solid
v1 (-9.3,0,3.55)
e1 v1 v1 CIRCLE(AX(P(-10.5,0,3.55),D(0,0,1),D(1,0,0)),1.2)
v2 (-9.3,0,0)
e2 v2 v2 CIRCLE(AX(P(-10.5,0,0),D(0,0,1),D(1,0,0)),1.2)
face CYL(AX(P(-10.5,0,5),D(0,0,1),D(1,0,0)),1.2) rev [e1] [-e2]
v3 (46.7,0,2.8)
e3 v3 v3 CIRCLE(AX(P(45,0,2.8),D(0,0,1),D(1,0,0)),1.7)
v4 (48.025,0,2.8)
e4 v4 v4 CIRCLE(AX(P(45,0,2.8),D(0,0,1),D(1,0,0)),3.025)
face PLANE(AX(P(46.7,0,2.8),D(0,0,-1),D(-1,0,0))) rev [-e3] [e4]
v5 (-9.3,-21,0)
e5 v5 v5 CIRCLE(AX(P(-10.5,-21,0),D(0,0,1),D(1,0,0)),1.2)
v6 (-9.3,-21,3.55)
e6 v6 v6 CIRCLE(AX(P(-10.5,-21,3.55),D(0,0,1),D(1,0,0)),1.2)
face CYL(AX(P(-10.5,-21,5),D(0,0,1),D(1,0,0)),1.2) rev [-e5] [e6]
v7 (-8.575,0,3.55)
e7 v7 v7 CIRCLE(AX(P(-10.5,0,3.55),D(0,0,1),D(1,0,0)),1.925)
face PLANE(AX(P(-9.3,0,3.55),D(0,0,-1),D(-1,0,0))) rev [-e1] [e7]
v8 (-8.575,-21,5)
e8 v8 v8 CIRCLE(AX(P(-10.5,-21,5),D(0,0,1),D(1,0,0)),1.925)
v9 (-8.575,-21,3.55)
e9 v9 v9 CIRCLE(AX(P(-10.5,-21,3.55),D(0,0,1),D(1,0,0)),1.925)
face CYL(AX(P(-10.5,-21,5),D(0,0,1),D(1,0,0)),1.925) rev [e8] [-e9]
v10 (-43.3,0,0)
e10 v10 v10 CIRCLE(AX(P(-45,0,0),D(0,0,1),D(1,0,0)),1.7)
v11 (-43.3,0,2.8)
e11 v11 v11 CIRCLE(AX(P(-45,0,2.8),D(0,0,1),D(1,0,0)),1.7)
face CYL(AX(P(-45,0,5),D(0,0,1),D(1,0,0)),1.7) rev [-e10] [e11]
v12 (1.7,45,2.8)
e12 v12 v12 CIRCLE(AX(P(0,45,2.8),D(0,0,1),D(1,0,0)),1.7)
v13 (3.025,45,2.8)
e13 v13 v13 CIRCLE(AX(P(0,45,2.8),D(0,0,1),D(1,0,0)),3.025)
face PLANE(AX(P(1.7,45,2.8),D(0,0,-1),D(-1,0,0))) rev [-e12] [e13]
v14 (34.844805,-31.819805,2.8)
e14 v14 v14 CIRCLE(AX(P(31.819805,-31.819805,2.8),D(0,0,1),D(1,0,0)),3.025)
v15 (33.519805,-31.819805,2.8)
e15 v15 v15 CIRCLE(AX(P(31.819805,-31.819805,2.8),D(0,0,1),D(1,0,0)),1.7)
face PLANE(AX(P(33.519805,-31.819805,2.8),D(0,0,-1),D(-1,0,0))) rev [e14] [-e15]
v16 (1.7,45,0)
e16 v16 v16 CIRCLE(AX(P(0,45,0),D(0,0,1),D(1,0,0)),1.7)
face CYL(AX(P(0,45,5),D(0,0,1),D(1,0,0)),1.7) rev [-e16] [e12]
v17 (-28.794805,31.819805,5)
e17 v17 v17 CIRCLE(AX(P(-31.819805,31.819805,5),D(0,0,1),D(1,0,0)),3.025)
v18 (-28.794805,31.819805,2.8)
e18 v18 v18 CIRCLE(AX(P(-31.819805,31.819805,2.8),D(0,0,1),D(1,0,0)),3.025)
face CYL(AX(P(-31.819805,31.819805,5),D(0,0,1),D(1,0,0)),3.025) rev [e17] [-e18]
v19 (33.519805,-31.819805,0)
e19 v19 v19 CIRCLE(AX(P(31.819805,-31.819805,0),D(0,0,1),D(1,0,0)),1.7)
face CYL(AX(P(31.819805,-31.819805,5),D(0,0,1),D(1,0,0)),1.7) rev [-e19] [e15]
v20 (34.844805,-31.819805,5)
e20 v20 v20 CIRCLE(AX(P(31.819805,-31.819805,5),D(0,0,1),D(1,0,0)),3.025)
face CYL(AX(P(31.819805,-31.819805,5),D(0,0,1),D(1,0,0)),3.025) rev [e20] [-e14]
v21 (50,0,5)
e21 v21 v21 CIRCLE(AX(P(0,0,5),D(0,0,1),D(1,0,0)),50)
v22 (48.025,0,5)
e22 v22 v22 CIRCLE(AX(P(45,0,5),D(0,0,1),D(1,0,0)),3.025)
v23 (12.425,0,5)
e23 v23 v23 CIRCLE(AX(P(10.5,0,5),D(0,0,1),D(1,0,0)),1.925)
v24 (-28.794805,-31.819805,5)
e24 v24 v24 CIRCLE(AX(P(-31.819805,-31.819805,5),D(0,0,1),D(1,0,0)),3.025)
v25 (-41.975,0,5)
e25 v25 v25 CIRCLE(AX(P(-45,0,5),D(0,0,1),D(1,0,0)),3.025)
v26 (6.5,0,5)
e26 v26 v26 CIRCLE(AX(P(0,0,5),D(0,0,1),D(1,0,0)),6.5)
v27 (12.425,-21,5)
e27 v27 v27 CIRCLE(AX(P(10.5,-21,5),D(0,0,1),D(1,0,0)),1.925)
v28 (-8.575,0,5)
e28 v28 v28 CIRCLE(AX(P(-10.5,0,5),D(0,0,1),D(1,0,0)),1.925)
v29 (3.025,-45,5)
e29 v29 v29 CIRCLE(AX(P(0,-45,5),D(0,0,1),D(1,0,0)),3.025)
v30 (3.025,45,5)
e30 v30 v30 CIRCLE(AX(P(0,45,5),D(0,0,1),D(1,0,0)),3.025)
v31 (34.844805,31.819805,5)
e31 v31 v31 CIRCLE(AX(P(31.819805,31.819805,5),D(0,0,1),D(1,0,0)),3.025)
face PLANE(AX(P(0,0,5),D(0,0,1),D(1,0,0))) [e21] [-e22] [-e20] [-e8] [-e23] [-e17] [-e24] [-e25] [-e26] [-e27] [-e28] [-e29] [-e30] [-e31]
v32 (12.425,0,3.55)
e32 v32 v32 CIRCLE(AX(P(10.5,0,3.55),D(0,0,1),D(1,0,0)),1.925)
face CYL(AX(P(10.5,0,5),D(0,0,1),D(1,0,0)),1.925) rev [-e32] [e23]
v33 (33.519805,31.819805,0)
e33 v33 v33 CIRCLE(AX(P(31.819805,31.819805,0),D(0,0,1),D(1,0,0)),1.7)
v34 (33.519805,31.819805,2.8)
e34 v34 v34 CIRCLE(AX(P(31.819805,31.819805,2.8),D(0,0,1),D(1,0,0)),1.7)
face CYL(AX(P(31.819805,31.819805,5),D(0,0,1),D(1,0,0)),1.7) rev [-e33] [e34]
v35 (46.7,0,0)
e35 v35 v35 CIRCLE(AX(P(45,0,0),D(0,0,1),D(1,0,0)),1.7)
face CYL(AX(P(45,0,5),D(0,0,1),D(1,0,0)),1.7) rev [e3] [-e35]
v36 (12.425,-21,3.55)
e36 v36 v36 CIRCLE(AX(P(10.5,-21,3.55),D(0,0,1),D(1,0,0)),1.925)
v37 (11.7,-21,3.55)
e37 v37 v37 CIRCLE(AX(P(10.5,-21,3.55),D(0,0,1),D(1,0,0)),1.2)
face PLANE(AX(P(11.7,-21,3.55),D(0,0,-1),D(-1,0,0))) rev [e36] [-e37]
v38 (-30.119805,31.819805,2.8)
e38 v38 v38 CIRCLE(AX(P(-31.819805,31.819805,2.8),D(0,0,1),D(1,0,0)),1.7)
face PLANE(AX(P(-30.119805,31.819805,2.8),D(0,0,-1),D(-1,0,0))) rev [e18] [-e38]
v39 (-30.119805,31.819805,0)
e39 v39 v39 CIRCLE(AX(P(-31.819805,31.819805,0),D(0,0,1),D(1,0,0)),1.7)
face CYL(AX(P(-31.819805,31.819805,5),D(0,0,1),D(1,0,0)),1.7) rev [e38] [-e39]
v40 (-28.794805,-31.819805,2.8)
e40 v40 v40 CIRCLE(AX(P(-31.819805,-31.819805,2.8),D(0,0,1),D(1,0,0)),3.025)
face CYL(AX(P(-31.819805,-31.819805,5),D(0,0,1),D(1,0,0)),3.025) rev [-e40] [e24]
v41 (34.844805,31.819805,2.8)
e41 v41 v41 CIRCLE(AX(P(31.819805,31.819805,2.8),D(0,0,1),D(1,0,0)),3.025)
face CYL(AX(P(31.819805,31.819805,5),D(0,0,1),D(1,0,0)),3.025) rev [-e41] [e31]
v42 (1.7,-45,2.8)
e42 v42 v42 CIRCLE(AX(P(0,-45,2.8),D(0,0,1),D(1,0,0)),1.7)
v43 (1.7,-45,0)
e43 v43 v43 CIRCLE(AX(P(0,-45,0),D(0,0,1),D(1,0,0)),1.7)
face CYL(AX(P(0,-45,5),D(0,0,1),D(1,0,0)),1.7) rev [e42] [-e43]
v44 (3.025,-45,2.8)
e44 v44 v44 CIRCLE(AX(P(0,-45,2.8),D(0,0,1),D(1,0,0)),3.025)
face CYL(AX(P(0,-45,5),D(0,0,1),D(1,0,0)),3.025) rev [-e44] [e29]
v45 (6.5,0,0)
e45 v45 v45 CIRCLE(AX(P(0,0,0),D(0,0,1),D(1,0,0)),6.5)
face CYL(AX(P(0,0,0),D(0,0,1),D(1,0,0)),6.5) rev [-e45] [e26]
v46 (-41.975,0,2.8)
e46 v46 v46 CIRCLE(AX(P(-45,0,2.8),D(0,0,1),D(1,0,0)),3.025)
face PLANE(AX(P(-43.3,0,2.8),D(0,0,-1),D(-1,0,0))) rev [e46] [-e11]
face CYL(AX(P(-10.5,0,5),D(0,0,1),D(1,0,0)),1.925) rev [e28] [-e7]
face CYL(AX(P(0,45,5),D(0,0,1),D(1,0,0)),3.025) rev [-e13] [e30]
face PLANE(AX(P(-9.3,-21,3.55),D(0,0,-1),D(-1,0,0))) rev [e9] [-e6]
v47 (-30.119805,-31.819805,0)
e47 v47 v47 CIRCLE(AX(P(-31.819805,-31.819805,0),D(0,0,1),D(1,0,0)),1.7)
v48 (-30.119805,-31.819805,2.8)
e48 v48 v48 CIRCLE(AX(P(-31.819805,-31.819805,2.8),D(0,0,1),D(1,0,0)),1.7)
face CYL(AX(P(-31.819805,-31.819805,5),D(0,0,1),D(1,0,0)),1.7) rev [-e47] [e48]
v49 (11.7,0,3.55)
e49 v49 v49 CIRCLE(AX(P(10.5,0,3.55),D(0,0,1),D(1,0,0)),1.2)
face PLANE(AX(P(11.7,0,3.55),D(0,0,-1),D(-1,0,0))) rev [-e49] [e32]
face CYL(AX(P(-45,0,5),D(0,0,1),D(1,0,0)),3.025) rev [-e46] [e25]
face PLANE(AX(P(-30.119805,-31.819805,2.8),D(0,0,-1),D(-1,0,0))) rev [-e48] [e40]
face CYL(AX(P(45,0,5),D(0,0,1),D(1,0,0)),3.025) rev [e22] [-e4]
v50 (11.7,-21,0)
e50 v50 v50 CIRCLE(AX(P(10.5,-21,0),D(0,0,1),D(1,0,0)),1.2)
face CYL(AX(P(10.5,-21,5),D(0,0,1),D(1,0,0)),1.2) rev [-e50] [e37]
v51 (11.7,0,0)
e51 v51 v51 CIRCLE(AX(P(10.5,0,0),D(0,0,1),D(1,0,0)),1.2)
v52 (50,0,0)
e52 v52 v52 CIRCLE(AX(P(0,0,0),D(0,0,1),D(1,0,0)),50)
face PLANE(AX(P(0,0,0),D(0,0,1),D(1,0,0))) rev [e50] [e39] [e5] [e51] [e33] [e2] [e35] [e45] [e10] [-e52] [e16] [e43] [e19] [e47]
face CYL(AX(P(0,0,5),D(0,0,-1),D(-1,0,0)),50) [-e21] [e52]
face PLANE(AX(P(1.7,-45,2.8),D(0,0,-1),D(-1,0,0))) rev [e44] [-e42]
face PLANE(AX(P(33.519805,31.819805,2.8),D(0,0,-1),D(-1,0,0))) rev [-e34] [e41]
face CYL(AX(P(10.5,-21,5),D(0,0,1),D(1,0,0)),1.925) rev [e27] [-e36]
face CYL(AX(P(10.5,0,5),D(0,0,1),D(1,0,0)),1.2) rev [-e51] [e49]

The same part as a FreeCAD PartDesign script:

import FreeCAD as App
import Part
import Sketcher
from FreeCAD import Vector
Q = App.Units.Quantity

doc = App.newDocument("Part")
body = doc.addObject("PartDesign::Body", "Body")

# Sketch on XY plane
sketch1 = body.newObject("Sketcher::SketchObject", "Sketch")
sketch1.AttachmentSupport = (doc.getObject("XY_Plane"), [""])
sketch1.MapMode = "FlatFace"
sketch1.addGeometry(Part.Circle(Vector(0, 0, 0), Vector(0, 0, 1), 50), False)
sketch1.addConstraint(Sketcher.Constraint("Coincident", 0, 3, -1, 1))
sketch1.addConstraint(Sketcher.Constraint("Diameter", 0, Q("100 mm")))
pad1 = body.newObject("PartDesign::Pad", "Pad")
pad1.Profile = sketch1
pad1.Length = 5

# Sketch on XY plane
sketch2 = body.newObject("Sketcher::SketchObject", "Sketch001")
sketch2.AttachmentSupport = (doc.getObject("XY_Plane"), [""])
sketch2.MapMode = "FlatFace"
sketch2.AttachmentOffset = App.Placement(Vector(0, 0, 5), App.Rotation())
sketch2.addGeometry(Part.Circle(Vector(-10.5, 0, 0), Vector(0, 0, 1), 1.2), False)
sketch2.addGeometry(Part.Circle(Vector(-10.5, -21, 0), Vector(0, 0, 1), 1.2), False)
sketch2.addConstraint(Sketcher.Constraint("Equal", 0, 1))
sketch2.addConstraint(Sketcher.Constraint("PointOnObject", 0, 3, -1))
sketch2.addConstraint(Sketcher.Constraint("Vertical", 0, 3, 1, 3))
sketch2.addConstraint(Sketcher.Constraint("Diameter", 0, Q("2.4 mm")))
sketch2.addConstraint(Sketcher.Constraint("DistanceY", 1, 3, -1, 1, Q("21 mm")))
sketch2.addConstraint(Sketcher.Constraint("DistanceX", 0, 3, -1, 1, Q("10.5 mm")))
doc.recompute()
hole = body.newObject("PartDesign::Hole", "Hole")
hole.Profile = sketch2
hole.ThreadType = "None"
hole.Diameter = 2.4
hole.DepthType = "ThroughAll"
hole.HoleCutType = "Counterbore"
hole.HoleCutDiameter = 3.85
hole.HoleCutDepth = 1.45
doc.recompute()

mirrored = body.newObject("PartDesign::Mirrored", "Mirrored")
mirrored.Originals = [hole]
mirrored.MirrorPlane = (doc.getObject("YZ_Plane"), [""])
body.Tip = mirrored

# Sketch on XY plane
sketch3 = body.newObject("Sketcher::SketchObject", "Sketch002")
sketch3.AttachmentSupport = (doc.getObject("XY_Plane"), [""])
sketch3.MapMode = "FlatFace"
sketch3.AttachmentOffset = App.Placement(Vector(0, 0, 5), App.Rotation())
sketch3.addGeometry(Part.Circle(Vector(45, 0, 0), Vector(0, 0, 1), 1.7), False)
sketch3.addConstraint(Sketcher.Constraint("PointOnObject", 0, 3, -1))
sketch3.addConstraint(Sketcher.Constraint("Diameter", 0, Q("3.4 mm")))
sketch3.addConstraint(Sketcher.Constraint("DistanceX", -1, 1, 0, 3, Q("45 mm")))
doc.recompute()
hole2 = body.newObject("PartDesign::Hole", "Hole001")
hole2.Profile = sketch3
hole2.ThreadType = "None"
hole2.Diameter = 3.4
hole2.DepthType = "ThroughAll"
hole2.HoleCutType = "Counterbore"
hole2.HoleCutDiameter = 6.05
hole2.HoleCutDepth = 2.2
doc.recompute()

polarpattern = body.newObject("PartDesign::PolarPattern", "PolarPattern")
polarpattern.Originals = [hole2]
polarpattern.Axis = (doc.getObject("Z_Axis"), [""])
polarpattern.Angle = 360
polarpattern.Occurrences = 8
body.Tip = polarpattern

# Sketch on XY plane
sketch4 = body.newObject("Sketcher::SketchObject", "Sketch003")
sketch4.AttachmentSupport = (doc.getObject("XY_Plane"), [""])
sketch4.MapMode = "FlatFace"
sketch4.AttachmentOffset = App.Placement(Vector(0, 0, 5), App.Rotation())
sketch4.addGeometry(Part.Circle(Vector(0, 0, 0), Vector(0, 0, 1), 6), False)
sketch4.addConstraint(Sketcher.Constraint("Coincident", 0, 3, -1, 1))
sketch4.addConstraint(Sketcher.Constraint("Diameter", 0, Q("13 mm")))
pocket1 = body.newObject("PartDesign::Pocket", "Pocket")
pocket1.Profile = sketch4
pocket1.Type = "ThroughAll"

doc.recompute()
